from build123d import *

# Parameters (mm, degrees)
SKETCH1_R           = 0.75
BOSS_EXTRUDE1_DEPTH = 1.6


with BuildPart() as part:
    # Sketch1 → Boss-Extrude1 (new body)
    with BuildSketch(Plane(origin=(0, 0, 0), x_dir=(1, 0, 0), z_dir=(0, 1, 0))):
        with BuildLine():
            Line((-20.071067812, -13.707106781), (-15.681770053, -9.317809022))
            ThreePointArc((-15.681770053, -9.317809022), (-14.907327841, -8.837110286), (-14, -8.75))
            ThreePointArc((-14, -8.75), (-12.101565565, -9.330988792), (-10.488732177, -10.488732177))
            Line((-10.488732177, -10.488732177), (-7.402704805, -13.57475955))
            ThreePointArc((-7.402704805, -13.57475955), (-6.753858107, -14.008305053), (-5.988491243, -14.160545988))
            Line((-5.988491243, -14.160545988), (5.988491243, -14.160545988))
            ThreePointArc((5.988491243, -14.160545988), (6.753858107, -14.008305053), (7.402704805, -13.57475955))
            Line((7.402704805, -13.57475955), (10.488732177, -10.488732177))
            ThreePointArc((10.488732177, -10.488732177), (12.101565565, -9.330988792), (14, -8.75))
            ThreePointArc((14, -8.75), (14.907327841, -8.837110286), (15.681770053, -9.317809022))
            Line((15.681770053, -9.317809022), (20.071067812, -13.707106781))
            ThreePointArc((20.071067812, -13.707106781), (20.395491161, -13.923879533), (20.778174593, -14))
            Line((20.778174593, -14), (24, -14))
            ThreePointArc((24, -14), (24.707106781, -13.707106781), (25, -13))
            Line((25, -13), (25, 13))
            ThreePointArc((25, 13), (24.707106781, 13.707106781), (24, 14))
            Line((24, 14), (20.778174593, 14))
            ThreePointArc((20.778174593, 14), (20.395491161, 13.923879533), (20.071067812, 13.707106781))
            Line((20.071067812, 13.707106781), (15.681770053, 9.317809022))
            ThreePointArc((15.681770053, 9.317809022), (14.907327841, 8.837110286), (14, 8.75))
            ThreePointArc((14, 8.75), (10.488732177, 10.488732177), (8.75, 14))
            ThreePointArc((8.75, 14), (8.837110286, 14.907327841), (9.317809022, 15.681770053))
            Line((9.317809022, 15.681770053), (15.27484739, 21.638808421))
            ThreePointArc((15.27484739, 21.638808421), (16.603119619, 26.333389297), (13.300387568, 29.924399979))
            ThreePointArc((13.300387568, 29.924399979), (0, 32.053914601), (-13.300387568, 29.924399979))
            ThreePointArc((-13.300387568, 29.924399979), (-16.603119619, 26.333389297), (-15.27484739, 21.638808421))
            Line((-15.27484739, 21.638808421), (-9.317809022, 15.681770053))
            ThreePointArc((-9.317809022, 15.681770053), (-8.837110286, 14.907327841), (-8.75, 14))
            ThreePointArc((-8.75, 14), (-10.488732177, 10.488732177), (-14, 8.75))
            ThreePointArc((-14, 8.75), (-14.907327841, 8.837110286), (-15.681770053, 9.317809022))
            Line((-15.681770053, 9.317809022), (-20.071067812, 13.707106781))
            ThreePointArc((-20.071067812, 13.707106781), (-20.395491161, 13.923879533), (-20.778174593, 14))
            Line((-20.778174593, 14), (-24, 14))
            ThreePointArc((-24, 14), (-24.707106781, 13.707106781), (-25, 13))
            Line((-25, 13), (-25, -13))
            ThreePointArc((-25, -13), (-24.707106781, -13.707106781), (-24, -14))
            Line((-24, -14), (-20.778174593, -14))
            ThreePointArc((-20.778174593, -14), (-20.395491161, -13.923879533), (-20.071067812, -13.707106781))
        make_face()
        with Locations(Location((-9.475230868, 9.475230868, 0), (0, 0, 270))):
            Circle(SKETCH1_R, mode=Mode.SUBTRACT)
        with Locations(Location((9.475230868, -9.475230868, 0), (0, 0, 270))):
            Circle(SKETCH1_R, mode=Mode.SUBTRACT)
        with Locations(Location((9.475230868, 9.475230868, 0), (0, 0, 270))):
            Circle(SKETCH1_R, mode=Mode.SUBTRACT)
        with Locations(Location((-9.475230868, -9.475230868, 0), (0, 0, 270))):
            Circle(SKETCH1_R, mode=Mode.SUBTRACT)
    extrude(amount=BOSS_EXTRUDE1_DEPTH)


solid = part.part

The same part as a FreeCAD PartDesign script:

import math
import FreeCAD as App
import Part
import Sketcher

V = App.Vector
Q = App.Units.Quantity

doc = App.newDocument("Part")
body = doc.addObject("PartDesign::Body", "Body")

sketch1 = body.newObject("Sketcher::SketchObject", "Sketch")
sketch1.AttachmentSupport = (doc.getObject("XZ_Plane"), [""])
sketch1.MapMode = "FlatFace"
sketch1.addGeometry([
    Part.LineSegment(V(-20.1, 13.7, 0), V(-15.7, 9.3, 0)),
    Part.ArcOfCircle(Part.Circle(V(-14.3, 10.7, 0), V(0, 0, 1), 2), math.radians(-135), math.radians(-82)),
    Part.ArcOfCircle(Part.Circle(V(-14.8, 14.8, 0), V(0, 0, 1), 6.1), math.radians(-82), math.radians(-45)),
    Part.LineSegment(V(-10.5, 10.5, 0), V(-7.4, 13.6, 0)),
    Part.ArcOfCircle(Part.Circle(V(-6, 12.2, 0), V(0, 0, 1), 2), math.radians(90), math.radians(135)),
    Part.LineSegment(V(-6, 14.2, 0), V(6, 14.2, 0)),
    Part.ArcOfCircle(Part.Circle(V(6, 12.2, 0), V(0, 0, 1), 2), math.radians(45), math.radians(90)),
    Part.LineSegment(V(7.4, 13.6, 0), V(10.5, 10.5, 0)),
    Part.ArcOfCircle(Part.Circle(V(14.8, 14.8, 0), V(0, 0, 1), 6.1), math.radians(-135), math.radians(-98)),
    Part.ArcOfCircle(Part.Circle(V(14.3, 10.7, 0), V(0, 0, 1), 2), math.radians(-98), math.radians(-45)),
    Part.LineSegment(V(15.7, 9.3, 0), V(20.1, 13.7, 0)),
    Part.ArcOfCircle(Part.Circle(V(20.8, 13, 0), V(0, 0, 1), 1), math.radians(90), math.radians(135)),
    Part.LineSegment(V(20.8, 14, 0), V(24, 14, 0)),
    Part.ArcOfCircle(Part.Circle(V(24, 13, 0), V(0, 0, 1), 1), math.radians(0), math.radians(90)),
    Part.LineSegment(V(25, 13, 0), V(25, -13, 0)),
    Part.ArcOfCircle(Part.Circle(V(24, -13, 0), V(0, 0, 1), 1), math.radians(-90), math.radians(0)),
    Part.LineSegment(V(24, -14, 0), V(20.8, -14, 0)),
    Part.ArcOfCircle(Part.Circle(V(20.8, -13, 0), V(0, 0, 1), 1), math.radians(-135), math.radians(-90)),
    Part.LineSegment(V(20.1, -13.7, 0), V(15.7, -9.3, 0)),
    Part.ArcOfCircle(Part.Circle(V(14.3, -10.7, 0), V(0, 0, 1), 2), math.radians(45), math.radians(98)),
    Part.ArcOfCircle(Part.Circle(V(14.8, -14.8, 0), V(0, 0, 1), 6.1), math.radians(98), math.radians(172)),
    Part.ArcOfCircle(Part.Circle(V(10.7, -14.3, 0), V(0, 0, 1), 2), math.radians(172), math.radians(225)),
    Part.LineSegment(V(9.3, -15.7, 0), V(15.3, -21.6, 0)),
    Part.ArcOfCircle(Part.Circle(V(11.7, -25.2, 0), V(0, 0, 1), 5), math.radians(-72), math.radians(45)),
    Part.ArcOfCircle(Part.Circle(V(0, 10.5, 0), V(0, 0, 1), 42.6), math.radians(-108), math.radians(-72)),
    Part.ArcOfCircle(Part.Circle(V(-11.7, -25.2, 0), V(0, 0, 1), 5), math.radians(135), math.radians(252)),
    Part.LineSegment(V(-15.3, -21.6, 0), V(-9.3, -15.7, 0)),
    Part.ArcOfCircle(Part.Circle(V(-10.7, -14.3, 0), V(0, 0, 1), 2), math.radians(-45), math.radians(8)),
    Part.ArcOfCircle(Part.Circle(V(-14.8, -14.8, 0), V(0, 0, 1), 6.1), math.radians(8), math.radians(82)),
    Part.ArcOfCircle(Part.Circle(V(-14.3, -10.7, 0), V(0, 0, 1), 2), math.radians(82), math.radians(135)),
    Part.LineSegment(V(-15.7, -9.3, 0), V(-20.1, -13.7, 0)),
    Part.ArcOfCircle(Part.Circle(V(-20.8, -13, 0), V(0, 0, 1), 1), math.radians(-90), math.radians(-45)),
    Part.LineSegment(V(-20.8, -14, 0), V(-24, -14, 0)),
    Part.ArcOfCircle(Part.Circle(V(-24, -13, 0), V(0, 0, 1), 1), math.radians(-180), math.radians(-90)),
    Part.LineSegment(V(-25, -13, 0), V(-25, 13, 0)),
    Part.ArcOfCircle(Part.Circle(V(-24, 13, 0), V(0, 0, 1), 1), math.radians(90), math.radians(180)),
    Part.LineSegment(V(-24, 14, 0), V(-20.8, 14, 0)),
    Part.ArcOfCircle(Part.Circle(V(-20.8, 13, 0), V(0, 0, 1), 1), math.radians(45), math.radians(90)),
    Part.Circle(V(-9.5, 9.5, 0), V(0, 0, 1), 0.8),
    Part.Circle(V(9.5, 9.5, 0), V(0, 0, 1), 0.8),
    Part.Circle(V(-9.5, -9.5, 0), V(0, 0, 1), 0.8),
    Part.Circle(V(9.5, -9.5, 0), V(0, 0, 1), 0.8),
], False)
sketch1.addConstraint([
    Sketcher.Constraint("Tangent", 0, 2, 1, 1),
    Sketcher.Constraint("Tangent", 1, 2, 2, 1),
    Sketcher.Constraint("Tangent", 2, 2, 3, 1),
    Sketcher.Constraint("Tangent", 3, 2, 4, 2),
    Sketcher.Constraint("Tangent", 4, 1, 5, 1),
    Sketcher.Constraint("Tangent", 5, 2, 6, 2),
    Sketcher.Constraint("Tangent", 6, 1, 7, 1),
    Sketcher.Constraint("Tangent", 7, 2, 8, 1),
    Sketcher.Constraint("Tangent", 8, 2, 9, 1),
    Sketcher.Constraint("Tangent", 9, 2, 10, 1),
    Sketcher.Constraint("Tangent", 10, 2, 11, 2),
    Sketcher.Constraint("Tangent", 11, 1, 12, 1),
    Sketcher.Constraint("Tangent", 12, 2, 13, 2),
    Sketcher.Constraint("Tangent", 13, 1, 14, 1),
    Sketcher.Constraint("Tangent", 14, 2, 15, 2),
    Sketcher.Constraint("Tangent", 15, 1, 16, 1),
    Sketcher.Constraint("Tangent", 16, 2, 17, 2),
    Sketcher.Constraint("Tangent", 17, 1, 18, 1),
    Sketcher.Constraint("Tangent", 18, 2, 19, 1),
    Sketcher.Constraint("Tangent", 19, 2, 20, 1),
    Sketcher.Constraint("Tangent", 20, 2, 21, 1),
    Sketcher.Constraint("Tangent", 21, 2, 22, 1),
    Sketcher.Constraint("Tangent", 22, 2, 23, 2),
    Sketcher.Constraint("Tangent", 23, 1, 24, 2),
    Sketcher.Constraint("Tangent", 24, 1, 25, 2),
    Sketcher.Constraint("Tangent", 25, 1, 26, 1),
    Sketcher.Constraint("Tangent", 26, 2, 27, 1),
    Sketcher.Constraint("Tangent", 27, 2, 28, 1),
    Sketcher.Constraint("Tangent", 28, 2, 29, 1),
    Sketcher.Constraint("Tangent", 29, 2, 30, 1),
    Sketcher.Constraint("Tangent", 30, 2, 31, 2),
    Sketcher.Constraint("Tangent", 31, 1, 32, 1),
    Sketcher.Constraint("Tangent", 32, 2, 33, 2),
    Sketcher.Constraint("Tangent", 33, 1, 34, 1),
    Sketcher.Constraint("Tangent", 34, 2, 35, 2),
    Sketcher.Constraint("Tangent", 35, 1, 36, 1),
    Sketcher.Constraint("Tangent", 36, 2, 37, 2),
    Sketcher.Constraint("Tangent", 37, 1, 0, 1),
    Sketcher.Constraint("Horizontal", 5),
    Sketcher.Constraint("Horizontal", 12),
    Sketcher.Constraint("Vertical", 14),
    Sketcher.Constraint("Horizontal", 16),
    Sketcher.Constraint("Horizontal", 32),
    Sketcher.Constraint("Vertical", 34),
    Sketcher.Constraint("Horizontal", 36),
    Sketcher.Constraint("Equal", 1, 4),
    Sketcher.Constraint("Equal", 4, 6),
    Sketcher.Constraint("Equal", 2, 8),
    Sketcher.Constraint("Equal", 6, 9),
    Sketcher.Constraint("Equal", 11, 13),
    Sketcher.Constraint("Equal", 13, 15),
    Sketcher.Constraint("Equal", 15, 17),
    Sketcher.Constraint("Equal", 9, 19),
    Sketcher.Constraint("Equal", 8, 20),
    Sketcher.Constraint("Equal", 19, 21),
    Sketcher.Constraint("Equal", 23, 25),
    Sketcher.Constraint("Equal", 21, 27),
    Sketcher.Constraint("Equal", 20, 28),
    Sketcher.Constraint("Equal", 27, 29),
    Sketcher.Constraint("Equal", 17, 31),
    Sketcher.Constraint("Equal", 31, 33),
    Sketcher.Constraint("Equal", 33, 35),
    Sketcher.Constraint("Equal", 35, 37),
    Sketcher.Constraint("Equal", 38, 39),
    Sketcher.Constraint("Equal", 39, 40),
    Sketcher.Constraint("Equal", 40, 41),
    Sketcher.Constraint("Symmetric", 1, 3, 19, 3, -1, 1),
    Sketcher.Constraint("Symmetric", 8, 3, 28, 3, -1, 1),
    Sketcher.Constraint("Symmetric", 11, 3, 31, 3, -1, 1),
    Sketcher.Constraint("Symmetric", 15, 3, 35, 3, -1, 1),
    Sketcher.Constraint("Symmetric", 39, 3, 40, 3, -1, 1),
    Sketcher.Constraint("Symmetric", 38, 3, 41, 3, -1, 1),
    Sketcher.Constraint("Symmetric", 2, 3, 8, 3, -2),
    Sketcher.Constraint("Symmetric", 23, 3, 25, 3, -2),
    Sketcher.Constraint("Symmetric", 21, 3, 27, 3, -2),
    Sketcher.Constraint("Symmetric", 17, 3, 31, 3, -2),
    Sketcher.Constraint("Symmetric", 38, 3, 39, 3, -2),
    Sketcher.Constraint("Symmetric", 0, 2, 9, 2, -2),
    Sketcher.Constraint("Perpendicular", 0, 3),
    Sketcher.Constraint("Perpendicular", 3, 7),
    Sketcher.Constraint("Perpendicular", 7, 10),
    Sketcher.Constraint("Parallel", 18, 22),
    Sketcher.Constraint("Parallel", 26, 30),
    Sketcher.Constraint("Horizontal", 16, 2, 20, 2),
    Sketcher.Constraint("Radius", 1, Q("2 mm")),
    Sketcher.Constraint("Radius", 11, Q("1 mm")),
    Sketcher.Constraint("Radius", 23, Q("5 mm")),
    Sketcher.Constraint("Diameter", 38, Q("1.5 mm")),
    Sketcher.Constraint("DistanceY", 14, 2, 14, 1, Q("26 mm")),
    Sketcher.Constraint("DistanceX", -1, 1, 13, 3, Q("24 mm")),
    Sketcher.Constraint("DistanceX", 1, 2, -1, 1, Q("14 mm")),
    Sketcher.Constraint("DistanceY", -1, 1, 1, 2, Q("8.75 mm")),
    Sketcher.Constraint("DistanceX", -1, 1, 20, 2, Q("8.75 mm")),
    Sketcher.Constraint("Radius", 2, Q("6.124356 mm")),
    Sketcher.Constraint("Radius", 24, Q("42.600117 mm")),
    Sketcher.Constraint("Distance", 3, Q("4.364302 mm")),
    Sketcher.Constraint("DistanceY", -1, 1, 24, 3, Q("10.546202 mm")),
    Sketcher.Constraint("DistanceX", 38, 3, -1, 1, Q("9.475231 mm")),
    Sketcher.Constraint("DistanceY", -1, 1, 38, 3, Q("9.475231 mm")),
])
pad1 = body.newObject("PartDesign::Pad", "Pad")
pad1.Profile = sketch1
pad1.Length = 1.6
pad1.Reversed = True

doc.recompute()
